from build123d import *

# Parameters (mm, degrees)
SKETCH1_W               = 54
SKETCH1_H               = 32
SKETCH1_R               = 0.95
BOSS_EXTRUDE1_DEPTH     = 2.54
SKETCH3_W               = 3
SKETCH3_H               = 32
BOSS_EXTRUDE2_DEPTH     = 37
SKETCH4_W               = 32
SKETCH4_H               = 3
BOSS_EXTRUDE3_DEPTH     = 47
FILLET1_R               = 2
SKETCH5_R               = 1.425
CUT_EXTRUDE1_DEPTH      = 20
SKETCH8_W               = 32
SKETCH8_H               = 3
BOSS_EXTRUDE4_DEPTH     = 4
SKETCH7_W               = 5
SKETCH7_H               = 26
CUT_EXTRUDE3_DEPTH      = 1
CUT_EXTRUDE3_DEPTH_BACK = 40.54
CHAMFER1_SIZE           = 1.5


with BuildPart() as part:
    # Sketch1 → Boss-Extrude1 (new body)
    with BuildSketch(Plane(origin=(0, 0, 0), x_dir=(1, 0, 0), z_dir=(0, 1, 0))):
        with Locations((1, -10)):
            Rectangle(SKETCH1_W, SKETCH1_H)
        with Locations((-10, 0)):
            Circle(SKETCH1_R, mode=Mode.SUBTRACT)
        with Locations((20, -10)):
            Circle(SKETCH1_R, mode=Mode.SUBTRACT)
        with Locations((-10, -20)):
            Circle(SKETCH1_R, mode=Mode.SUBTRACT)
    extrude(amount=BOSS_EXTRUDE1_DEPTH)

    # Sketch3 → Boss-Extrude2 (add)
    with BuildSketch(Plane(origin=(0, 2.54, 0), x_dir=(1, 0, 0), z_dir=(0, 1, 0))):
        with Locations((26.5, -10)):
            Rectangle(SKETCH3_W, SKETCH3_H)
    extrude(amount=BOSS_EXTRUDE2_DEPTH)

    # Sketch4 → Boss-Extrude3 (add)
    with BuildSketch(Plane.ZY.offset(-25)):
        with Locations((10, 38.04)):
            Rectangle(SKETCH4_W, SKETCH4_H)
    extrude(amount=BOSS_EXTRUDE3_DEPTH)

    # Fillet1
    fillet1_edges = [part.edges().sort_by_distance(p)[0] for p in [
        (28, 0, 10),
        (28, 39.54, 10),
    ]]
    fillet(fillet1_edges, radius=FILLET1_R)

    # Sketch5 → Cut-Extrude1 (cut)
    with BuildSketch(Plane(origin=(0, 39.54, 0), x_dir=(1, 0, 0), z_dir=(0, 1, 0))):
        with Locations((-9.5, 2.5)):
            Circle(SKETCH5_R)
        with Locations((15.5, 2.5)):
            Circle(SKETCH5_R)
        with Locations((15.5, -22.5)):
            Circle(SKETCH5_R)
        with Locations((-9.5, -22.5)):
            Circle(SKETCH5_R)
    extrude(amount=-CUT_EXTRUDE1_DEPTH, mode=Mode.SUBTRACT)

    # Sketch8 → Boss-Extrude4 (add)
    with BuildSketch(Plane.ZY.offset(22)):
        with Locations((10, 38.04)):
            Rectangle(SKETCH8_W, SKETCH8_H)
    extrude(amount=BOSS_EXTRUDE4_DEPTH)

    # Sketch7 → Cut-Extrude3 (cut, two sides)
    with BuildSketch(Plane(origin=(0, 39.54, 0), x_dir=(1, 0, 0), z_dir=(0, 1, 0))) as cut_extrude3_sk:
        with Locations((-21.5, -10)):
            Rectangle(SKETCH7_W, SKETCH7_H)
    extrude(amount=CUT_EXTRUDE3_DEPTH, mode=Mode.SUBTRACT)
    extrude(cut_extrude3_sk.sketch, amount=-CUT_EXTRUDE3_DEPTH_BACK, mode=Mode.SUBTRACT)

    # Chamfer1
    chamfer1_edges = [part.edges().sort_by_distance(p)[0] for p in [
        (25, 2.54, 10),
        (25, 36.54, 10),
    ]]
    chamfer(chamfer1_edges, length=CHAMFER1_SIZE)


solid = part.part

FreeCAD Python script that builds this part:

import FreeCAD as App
import Part
import Sketcher


def edges_at(feature, points):
    """Names of the edges that pass closest to the given points."""
    edges = feature.Shape.Edges
    near = lambda p: min(range(len(edges)), key=lambda i: edges[i].distToShape(Part.Vertex(*p))[0])
    return sorted({f"Edge{near(p) + 1}" for p in points})

doc = App.newDocument("Part")
body = doc.addObject("PartDesign::Body", "Body")

# Sketch on XZ plane
sketch1 = body.newObject("Sketcher::SketchObject", "Sketch")
sketch1.AttachmentSupport = (doc.getObject("XZ_Plane"), [""])
sketch1.MapMode = "FlatFace"
sketch1.addGeometry([
    Part.LineSegment(App.Vector(-26, -6, 0), App.Vector(-26, 26, 0)),  # 0
    Part.LineSegment(App.Vector(-26, 26, 0), App.Vector(28, 26, 0)),  # 1
    Part.LineSegment(App.Vector(28, 26, 0), App.Vector(28, -6, 0)),  # 2
    Part.LineSegment(App.Vector(28, -6, 0), App.Vector(-26, -6, 0)),  # 3
    Part.Circle(App.Vector(-10, 20, 0), App.Vector(0, 0, 1), 0.9),  # 4
    Part.Circle(App.Vector(-10, 0, 0), App.Vector(0, 0, 1), 0.9),  # 5
    Part.Circle(App.Vector(20, 10, 0), App.Vector(0, 0, 1), 0.9),  # 6
], False)
sketch1.addConstraint([
    Sketcher.Constraint("Coincident", 0, 2, 1, 1),
    Sketcher.Constraint("Coincident", 1, 2, 2, 1),
    Sketcher.Constraint("Coincident", 2, 2, 3, 1),
    Sketcher.Constraint("Coincident", 3, 2, 0, 1),
    Sketcher.Constraint("Vertical", 0),
    Sketcher.Constraint("Horizontal", 1),
    Sketcher.Constraint("Vertical", 2),
    Sketcher.Constraint("Horizontal", 3),
    Sketcher.Constraint("Equal", 4, 5),
    Sketcher.Constraint("Equal", 5, 6),
    Sketcher.Constraint("PointOnObject", 5, 3, -1),
    Sketcher.Constraint("Vertical", 4, 3, 5, 3),
    Sketcher.Constraint("Diameter", 4, 1.9),
    Sketcher.Constraint("DistanceX", 1, 1, 1, 2, 54.0),
    Sketcher.Constraint("DistanceY", 0, 1, 0, 2, 32.0),
    Sketcher.Constraint("DistanceX", 4, 3, -1, 1, 10.0),
    Sketcher.Constraint("DistanceY", -1, 1, 4, 3, 20.0),
    Sketcher.Constraint("DistanceX", -1, 1, 6, 3, 20.0),
    Sketcher.Constraint("DistanceY", -1, 1, 6, 3, 10.0),
    Sketcher.Constraint("DistanceX", 0, 2, -1, 1, 26.0),
    Sketcher.Constraint("DistanceY", -1, 1, 0, 2, 26.0),
])
pad1 = body.newObject("PartDesign::Pad", "Pad")
pad1.Profile = sketch1
pad1.Length = 2.54
pad1.Reversed = True

# Sketch on XZ plane
sketch2 = body.newObject("Sketcher::SketchObject", "Sketch001")
sketch2.AttachmentSupport = (doc.getObject("XZ_Plane"), [""])
sketch2.MapMode = "FlatFace"
sketch2.AttachmentOffset = App.Placement(App.Vector(0, 0, -2.54), App.Rotation())
sketch2.addGeometry([
    Part.LineSegment(App.Vector(25, -6, 0), App.Vector(25, 26, 0)),
    Part.LineSegment(App.Vector(25, 26, 0), App.Vector(28, 26, 0)),
    Part.LineSegment(App.Vector(28, 26, 0), App.Vector(28, -6, 0)),
    Part.LineSegment(App.Vector(28, -6, 0), App.Vector(25, -6, 0)),
], False)
sketch2.addConstraint([
    Sketcher.Constraint("Coincident", 0, 2, 1, 1),
    Sketcher.Constraint("Coincident", 1, 2, 2, 1),
    Sketcher.Constraint("Coincident", 2, 2, 3, 1),
    Sketcher.Constraint("Coincident", 3, 2, 0, 1),
    Sketcher.Constraint("Vertical", 0),
    Sketcher.Constraint("Horizontal", 1),
    Sketcher.Constraint("Vertical", 2),
    Sketcher.Constraint("Horizontal", 3),
    Sketcher.Constraint("DistanceX", 1, 1, 1, 2, 3.0),
    Sketcher.Constraint("DistanceY", 0, 1, 0, 2, 32.0),
    Sketcher.Constraint("DistanceX", -1, 1, 0, 2, 25.0),
    Sketcher.Constraint("DistanceY", -1, 1, 0, 2, 26.0),
])
pad2 = body.newObject("PartDesign::Pad", "Pad001")
pad2.Profile = sketch2
pad2.Length = 37
pad2.Reversed = True

# Sketch on YZ plane
sketch3 = body.newObject("Sketcher::SketchObject", "Sketch002")
sketch3.AttachmentSupport = (doc.getObject("YZ_Plane"), [""])
sketch3.MapMode = "FlatFace"
sketch3.AttachmentOffset = App.Placement(App.Vector(0, 0, 25), App.Rotation())
sketch3.addGeometry([
    Part.LineSegment(App.Vector(39.5, -6, 0), App.Vector(36.5, -6, 0)),
    Part.LineSegment(App.Vector(36.5, -6, 0), App.Vector(36.5, 26, 0)),
    Part.LineSegment(App.Vector(36.5, 26, 0), App.Vector(39.5, 26, 0)),
    Part.LineSegment(App.Vector(39.5, 26, 0), App.Vector(39.5, -6, 0)),
], False)
sketch3.addConstraint([
    Sketcher.Constraint("Coincident", 0, 2, 1, 1),
    Sketcher.Constraint("Coincident", 1, 2, 2, 1),
    Sketcher.Constraint("Coincident", 2, 2, 3, 1),
    Sketcher.Constraint("Coincident", 3, 2, 0, 1),
    Sketcher.Constraint("Horizontal", 0),
    Sketcher.Constraint("Vertical", 1),
    Sketcher.Constraint("Horizontal", 2),
    Sketcher.Constraint("Vertical", 3),
    Sketcher.Constraint("DistanceX", 0, 2, 0, 1, 3.0),
    Sketcher.Constraint("DistanceY", 1, 1, 1, 2, 32.0),
    Sketcher.Constraint("DistanceY", 0, 2, -1, 1, 6.0),
    Sketcher.Constraint("DistanceX", -1, 1, 0, 2, 36.54),
])
pad3 = body.newObject("PartDesign::Pad", "Pad002")
pad3.Profile = sketch3
pad3.Length = 47
pad3.Reversed = True
doc.recompute()

fillet = body.newObject("PartDesign::Fillet", "Fillet")
fillet.Base = (pad3, edges_at(pad3, [(28, 0, 10), (28, 39.54, 10)]))
fillet.Radius = 2

# Sketch on XZ plane
sketch4 = body.newObject("Sketcher::SketchObject", "Sketch003")
sketch4.AttachmentSupport = (doc.getObject("XZ_Plane"), [""])
sketch4.MapMode = "FlatFace"
sketch4.AttachmentOffset = App.Placement(App.Vector(0, 0, -39.54), App.Rotation())
sketch4.addGeometry([
    Part.Circle(App.Vector(-9.5, -2.5, 0), App.Vector(0, 0, 1), 1.4),
    Part.Circle(App.Vector(15.5, -2.5, 0), App.Vector(0, 0, 1), 1.4),
    Part.Circle(App.Vector(15.5, 22.5, 0), App.Vector(0, 0, 1), 1.4),
    Part.Circle(App.Vector(-9.5, 22.5, 0), App.Vector(0, 0, 1), 1.4),
], False)
sketch4.addConstraint([
    Sketcher.Constraint("Equal", 0, 1),
    Sketcher.Constraint("Equal", 1, 2),
    Sketcher.Constraint("Equal", 2, 3),
    Sketcher.Constraint("Horizontal", 0, 3, 1, 3),
    Sketcher.Constraint("Horizontal", 2, 3, 3, 3),
    Sketcher.Constraint("Vertical", 1, 3, 2, 3),
    Sketcher.Constraint("Vertical", 0, 3, 3, 3),
    Sketcher.Constraint("Diameter", 0, 2.85),
    Sketcher.Constraint("DistanceX", 0, 3, 1, 3, 25.0),
    Sketcher.Constraint("DistanceY", 1, 3, 2, 3, 25.0),
    Sketcher.Constraint("DistanceX", 0, 3, -1, 1, 9.5),
    Sketcher.Constraint("DistanceY", 0, 3, -1, 1, 2.5),
])
pocket1 = body.newObject("PartDesign::Pocket", "Pocket")
pocket1.Profile = sketch4
pocket1.Length = 20
pocket1.Reversed = True

# Sketch on YZ plane
sketch5 = body.newObject("Sketcher::SketchObject", "Sketch004")
sketch5.AttachmentSupport = (doc.getObject("YZ_Plane"), [""])
sketch5.MapMode = "FlatFace"
sketch5.AttachmentOffset = App.Placement(App.Vector(0, 0, -22), App.Rotation())
sketch5.addGeometry([
    Part.LineSegment(App.Vector(39.5, -6, 0), App.Vector(36.5, -6, 0)),
    Part.LineSegment(App.Vector(36.5, -6, 0), App.Vector(36.5, 26, 0)),
    Part.LineSegment(App.Vector(36.5, 26, 0), App.Vector(39.5, 26, 0)),
    Part.LineSegment(App.Vector(39.5, 26, 0), App.Vector(39.5, -6, 0)),
], False)
sketch5.addConstraint([
    Sketcher.Constraint("Coincident", 0, 2, 1, 1),
    Sketcher.Constraint("Coincident", 1, 2, 2, 1),
    Sketcher.Constraint("Coincident", 2, 2, 3, 1),
    Sketcher.Constraint("Coincident", 3, 2, 0, 1),
    Sketcher.Constraint("Horizontal", 0),
    Sketcher.Constraint("Vertical", 1),
    Sketcher.Constraint("Horizontal", 2),
    Sketcher.Constraint("Vertical", 3),
    Sketcher.Constraint("DistanceX", 0, 2, 0, 1, 3.0),
    Sketcher.Constraint("DistanceY", 1, 1, 1, 2, 32.0),
    Sketcher.Constraint("DistanceY", 0, 2, -1, 1, 6.0),
    Sketcher.Constraint("DistanceX", -1, 1, 0, 2, 36.54),
])
pad4 = body.newObject("PartDesign::Pad", "Pad003")
pad4.Profile = sketch5
pad4.Length = 4
pad4.Reversed = True

# Sketch on XZ plane
sketch6 = body.newObject("Sketcher::SketchObject", "Sketch005")
sketch6.AttachmentSupport = (doc.getObject("XZ_Plane"), [""])
sketch6.MapMode = "FlatFace"
sketch6.AttachmentOffset = App.Placement(App.Vector(0, 0, -39.54), App.Rotation())
sketch6.addGeometry([
    Part.LineSegment(App.Vector(-24, -3, 0), App.Vector(-24, 23, 0)),
    Part.LineSegment(App.Vector(-24, 23, 0), App.Vector(-19, 23, 0)),
    Part.LineSegment(App.Vector(-19, 23, 0), App.Vector(-19, -3, 0)),
    Part.LineSegment(App.Vector(-19, -3, 0), App.Vector(-24, -3, 0)),
], False)
sketch6.addConstraint([
    Sketcher.Constraint("Coincident", 0, 2, 1, 1),
    Sketcher.Constraint("Coincident", 1, 2, 2, 1),
    Sketcher.Constraint("Coincident", 2, 2, 3, 1),
    Sketcher.Constraint("Coincident", 3, 2, 0, 1),
    Sketcher.Constraint("Vertical", 0),
    Sketcher.Constraint("Horizontal", 1),
    Sketcher.Constraint("Vertical", 2),
    Sketcher.Constraint("Horizontal", 3),
    Sketcher.Constraint("DistanceX", 1, 1, 1, 2, 5.0),
    Sketcher.Constraint("DistanceY", 0, 1, 0, 2, 26.0),
    Sketcher.Constraint("DistanceX", 0, 2, -1, 1, 24.0),
    Sketcher.Constraint("DistanceY", -1, 1, 0, 2, 23.0),
])
pocket2 = body.newObject("PartDesign::Pocket", "Pocket001")
pocket2.Profile = sketch6
pocket2.Type = "ThroughAll"
pocket2.Midplane = True
doc.recompute()

chamfer = body.newObject("PartDesign::Chamfer", "Chamfer")
chamfer.Base = (pocket2, edges_at(pocket2, [(25, 2.54, 10), (25, 36.54, 10)]))
chamfer.Size = 1.5

doc.recompute()
